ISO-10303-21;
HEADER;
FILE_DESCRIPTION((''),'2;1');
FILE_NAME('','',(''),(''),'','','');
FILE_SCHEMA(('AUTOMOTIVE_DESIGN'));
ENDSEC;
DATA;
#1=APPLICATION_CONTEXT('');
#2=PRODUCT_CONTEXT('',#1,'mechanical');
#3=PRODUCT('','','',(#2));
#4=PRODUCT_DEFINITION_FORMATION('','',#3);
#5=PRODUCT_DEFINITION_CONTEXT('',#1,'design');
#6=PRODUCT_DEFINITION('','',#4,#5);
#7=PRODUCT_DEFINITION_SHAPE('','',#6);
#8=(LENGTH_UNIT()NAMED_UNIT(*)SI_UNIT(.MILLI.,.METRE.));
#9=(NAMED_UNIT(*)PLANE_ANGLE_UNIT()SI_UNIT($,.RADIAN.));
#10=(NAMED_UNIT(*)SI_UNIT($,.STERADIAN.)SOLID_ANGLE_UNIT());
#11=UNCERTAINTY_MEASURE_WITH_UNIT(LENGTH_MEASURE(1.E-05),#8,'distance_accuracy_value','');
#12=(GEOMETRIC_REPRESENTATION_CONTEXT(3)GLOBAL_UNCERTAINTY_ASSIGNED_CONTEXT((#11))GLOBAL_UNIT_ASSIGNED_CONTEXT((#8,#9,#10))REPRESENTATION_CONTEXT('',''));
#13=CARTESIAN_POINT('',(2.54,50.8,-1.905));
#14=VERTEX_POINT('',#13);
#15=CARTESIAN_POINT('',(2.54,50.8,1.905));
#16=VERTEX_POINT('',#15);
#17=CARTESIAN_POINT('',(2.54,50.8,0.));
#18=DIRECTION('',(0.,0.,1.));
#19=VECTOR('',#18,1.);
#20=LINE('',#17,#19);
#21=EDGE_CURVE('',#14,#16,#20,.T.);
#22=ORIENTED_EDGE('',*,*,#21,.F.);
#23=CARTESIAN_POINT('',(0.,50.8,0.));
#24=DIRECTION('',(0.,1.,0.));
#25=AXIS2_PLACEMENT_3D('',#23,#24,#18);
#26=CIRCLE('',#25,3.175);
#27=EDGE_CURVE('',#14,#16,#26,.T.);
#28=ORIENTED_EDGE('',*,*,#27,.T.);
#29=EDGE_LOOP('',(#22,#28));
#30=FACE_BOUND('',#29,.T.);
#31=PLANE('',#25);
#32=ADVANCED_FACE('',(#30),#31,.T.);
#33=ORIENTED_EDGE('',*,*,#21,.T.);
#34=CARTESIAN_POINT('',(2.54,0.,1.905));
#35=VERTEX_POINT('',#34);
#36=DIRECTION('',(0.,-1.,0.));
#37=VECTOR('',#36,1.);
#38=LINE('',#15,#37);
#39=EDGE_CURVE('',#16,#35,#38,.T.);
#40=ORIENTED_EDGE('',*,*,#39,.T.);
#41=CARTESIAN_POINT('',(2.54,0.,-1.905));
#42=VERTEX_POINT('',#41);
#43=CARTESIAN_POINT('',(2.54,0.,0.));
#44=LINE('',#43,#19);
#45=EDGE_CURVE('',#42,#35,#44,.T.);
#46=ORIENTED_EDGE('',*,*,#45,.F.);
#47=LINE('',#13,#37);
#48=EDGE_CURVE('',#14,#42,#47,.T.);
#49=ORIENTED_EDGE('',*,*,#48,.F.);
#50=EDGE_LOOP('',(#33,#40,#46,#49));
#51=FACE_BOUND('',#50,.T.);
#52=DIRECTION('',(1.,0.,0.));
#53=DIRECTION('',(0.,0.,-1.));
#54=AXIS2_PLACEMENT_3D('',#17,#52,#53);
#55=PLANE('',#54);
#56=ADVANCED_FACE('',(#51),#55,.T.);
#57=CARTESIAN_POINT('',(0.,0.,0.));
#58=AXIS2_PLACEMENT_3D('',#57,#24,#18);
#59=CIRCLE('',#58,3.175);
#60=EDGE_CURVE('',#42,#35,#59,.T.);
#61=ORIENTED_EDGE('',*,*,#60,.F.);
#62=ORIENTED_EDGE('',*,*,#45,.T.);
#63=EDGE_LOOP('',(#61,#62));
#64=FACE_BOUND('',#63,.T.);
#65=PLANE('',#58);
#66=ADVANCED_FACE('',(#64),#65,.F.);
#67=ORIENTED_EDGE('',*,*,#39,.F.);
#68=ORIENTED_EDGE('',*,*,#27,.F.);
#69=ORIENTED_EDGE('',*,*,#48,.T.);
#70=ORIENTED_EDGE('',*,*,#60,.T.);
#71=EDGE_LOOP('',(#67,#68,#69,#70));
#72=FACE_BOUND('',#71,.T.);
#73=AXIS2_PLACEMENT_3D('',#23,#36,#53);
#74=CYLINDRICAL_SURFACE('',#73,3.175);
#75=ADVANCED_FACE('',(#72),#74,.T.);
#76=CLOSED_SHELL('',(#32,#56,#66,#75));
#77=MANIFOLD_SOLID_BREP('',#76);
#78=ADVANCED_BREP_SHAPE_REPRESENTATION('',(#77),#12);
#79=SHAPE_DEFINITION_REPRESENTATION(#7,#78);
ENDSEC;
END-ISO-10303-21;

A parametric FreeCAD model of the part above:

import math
import FreeCAD as App
import Part
import Sketcher

V = App.Vector
Q = App.Units.Quantity

doc = App.newDocument("Part")
params = doc.addObject("Spreadsheet::Sheet", "Params")
for row, (alias, value) in enumerate([
    ("sketch1_radius", "0.125 in"),
    ("sketch1_height", "0.15 in"),
    ("pad1_length", "2 in"),
], start=1):
    params.set(f"A{row}", alias)
    params.set(f"B{row}", "=" + value)
    params.setAlias(f"B{row}", alias)

body = doc.addObject("PartDesign::Body", "Body")

sketch1 = body.newObject("Sketcher::SketchObject", "Sketch")
sketch1.AttachmentSupport = (doc.getObject("XZ_Plane"), [""])
sketch1.MapMode = "FlatFace"
sketch1.addGeometry([
    Part.LineSegment(V(2.5, 1.9, 0), V(2.5, -1.9, 0)),
    Part.ArcOfCircle(Part.Circle(V(0, 0, 0), V(0, 0, 1), 3.2), math.radians(37), math.radians(323)),
], False)
sketch1.addConstraint([
    Sketcher.Constraint("Coincident", 0, 1, 1, 1),
    Sketcher.Constraint("Coincident", 1, 2, 0, 2),
    Sketcher.Constraint("Vertical", 0),
    Sketcher.Constraint("Coincident", 1, 3, -1, 1),
    Sketcher.Constraint("Radius", 1, Q("0.125 in")),
    Sketcher.Constraint("DistanceY", 0, 2, 0, 1, Q("0.15 in")),
])
sketch1.setExpression("Constraints[4]", "Params.sketch1_radius")
sketch1.setExpression("Constraints[5]", "Params.sketch1_height")
pad1 = body.newObject("PartDesign::Pad", "Pad")
pad1.Profile = sketch1
pad1.setExpression("Length", "Params.pad1_length")
pad1.Reversed = True

doc.recompute()
